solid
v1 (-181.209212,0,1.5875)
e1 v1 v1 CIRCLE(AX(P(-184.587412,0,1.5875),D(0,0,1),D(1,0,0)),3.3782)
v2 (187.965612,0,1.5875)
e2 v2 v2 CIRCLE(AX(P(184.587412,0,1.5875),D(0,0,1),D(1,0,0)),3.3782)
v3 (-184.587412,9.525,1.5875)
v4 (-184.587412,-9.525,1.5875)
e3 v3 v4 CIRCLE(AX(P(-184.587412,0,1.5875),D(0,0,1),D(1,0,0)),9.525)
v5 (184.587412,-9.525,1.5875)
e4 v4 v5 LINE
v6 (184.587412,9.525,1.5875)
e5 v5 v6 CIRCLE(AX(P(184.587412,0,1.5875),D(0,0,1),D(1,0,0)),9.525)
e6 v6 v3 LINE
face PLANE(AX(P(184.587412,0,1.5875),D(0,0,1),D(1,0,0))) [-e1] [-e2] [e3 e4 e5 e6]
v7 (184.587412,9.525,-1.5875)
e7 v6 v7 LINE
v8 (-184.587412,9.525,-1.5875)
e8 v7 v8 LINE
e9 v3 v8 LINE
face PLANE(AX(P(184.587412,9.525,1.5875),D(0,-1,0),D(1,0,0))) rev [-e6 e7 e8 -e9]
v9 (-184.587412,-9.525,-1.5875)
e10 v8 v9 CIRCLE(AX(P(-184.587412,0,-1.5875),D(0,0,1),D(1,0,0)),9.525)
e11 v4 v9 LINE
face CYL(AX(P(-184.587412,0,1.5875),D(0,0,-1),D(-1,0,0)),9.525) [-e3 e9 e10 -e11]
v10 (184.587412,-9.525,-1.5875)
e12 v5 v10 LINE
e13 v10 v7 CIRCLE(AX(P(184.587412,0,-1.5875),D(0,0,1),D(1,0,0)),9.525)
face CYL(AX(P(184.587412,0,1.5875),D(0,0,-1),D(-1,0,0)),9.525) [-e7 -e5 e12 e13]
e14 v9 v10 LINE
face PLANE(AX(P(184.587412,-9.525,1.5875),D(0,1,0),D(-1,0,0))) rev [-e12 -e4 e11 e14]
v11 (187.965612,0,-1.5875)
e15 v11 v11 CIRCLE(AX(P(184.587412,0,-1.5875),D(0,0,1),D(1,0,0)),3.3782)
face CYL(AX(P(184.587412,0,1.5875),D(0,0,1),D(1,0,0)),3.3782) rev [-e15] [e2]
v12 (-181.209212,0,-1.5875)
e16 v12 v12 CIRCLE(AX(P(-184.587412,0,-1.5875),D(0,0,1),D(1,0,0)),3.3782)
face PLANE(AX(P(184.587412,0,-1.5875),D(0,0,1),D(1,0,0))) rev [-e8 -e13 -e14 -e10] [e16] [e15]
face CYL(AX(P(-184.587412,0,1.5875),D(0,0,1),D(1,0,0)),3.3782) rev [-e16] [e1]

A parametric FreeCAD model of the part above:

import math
import FreeCAD as App
import Part
import Sketcher

V = App.Vector
Q = App.Units.Quantity

doc = App.newDocument("Part")
body = doc.addObject("PartDesign::Body", "Body")

# Sketch on XY plane
sketch1 = body.newObject("Sketcher::SketchObject", "Sketch")
sketch1.AttachmentSupport = (doc.getObject("XY_Plane"), [""])
sketch1.MapMode = "FlatFace"
sketch1.addGeometry([
    Part.LineSegment(V(-185, -10, 0), V(185, -10, 0)),
    Part.ArcOfCircle(Part.Circle(V(185, 0, 0), V(0, 0, 1), 10), math.radians(-90), math.radians(90)),
    Part.LineSegment(V(185, 10, 0), V(-185, 10, 0)),
    Part.ArcOfCircle(Part.Circle(V(-185, 0, 0), V(0, 0, 1), 10), math.radians(90), math.radians(270)),
], False)
sketch1.addConstraint([
    Sketcher.Constraint("Tangent", 0, 2, 1, 1),
    Sketcher.Constraint("Tangent", 1, 2, 2, 1),
    Sketcher.Constraint("Tangent", 2, 2, 3, 1),
    Sketcher.Constraint("Tangent", 3, 2, 0, 1),
    Sketcher.Constraint("Horizontal", 0),
    Sketcher.Constraint("Horizontal", 2),
    Sketcher.Constraint("Symmetric", 1, 3, 3, 3, -1, 1),
    Sketcher.Constraint("Radius", 1, Q("0.375 in")),
    Sketcher.Constraint("DistanceX", 0, 1, 0, 2, 369.174823),
])
pad1 = body.newObject("PartDesign::Pad", "Pad")
pad1.Profile = sketch1
pad1.Length = Q("0.125 in")
pad1.Midplane = True

# Sketch on XY plane
sketch2 = body.newObject("Sketcher::SketchObject", "Sketch001")
sketch2.AttachmentSupport = (doc.getObject("XY_Plane"), [""])
sketch2.MapMode = "FlatFace"
sketch2.AttachmentOffset = App.Placement(V(0, 0, 0.0625 * 25.4), App.Rotation())
sketch2.addGeometry([
    Part.Circle(V(-184.6, 0, 0), V(0, 0, 1), 3.4),
    Part.Circle(V(184.6, 0, 0), V(0, 0, 1), 3.4),
], False)
sketch2.addConstraint([
    Sketcher.Constraint("Equal", 0, 1),
    Sketcher.Constraint("Symmetric", 0, 3, 1, 3, -1, 1),
    Sketcher.Constraint("PointOnObject", 0, 3, -1),
    Sketcher.Constraint("Diameter", 0, Q("0.266 in")),
    Sketcher.Constraint("DistanceX", 0, 3, -1, 1, 184.587412),
])
doc.recompute()
hole = body.newObject("PartDesign::Hole", "Hole")
hole.Profile = sketch2
hole.ThreadType = "None"
hole.Diameter = Q("0.266 in")
hole.DepthType = "ThroughAll"

doc.recompute()
